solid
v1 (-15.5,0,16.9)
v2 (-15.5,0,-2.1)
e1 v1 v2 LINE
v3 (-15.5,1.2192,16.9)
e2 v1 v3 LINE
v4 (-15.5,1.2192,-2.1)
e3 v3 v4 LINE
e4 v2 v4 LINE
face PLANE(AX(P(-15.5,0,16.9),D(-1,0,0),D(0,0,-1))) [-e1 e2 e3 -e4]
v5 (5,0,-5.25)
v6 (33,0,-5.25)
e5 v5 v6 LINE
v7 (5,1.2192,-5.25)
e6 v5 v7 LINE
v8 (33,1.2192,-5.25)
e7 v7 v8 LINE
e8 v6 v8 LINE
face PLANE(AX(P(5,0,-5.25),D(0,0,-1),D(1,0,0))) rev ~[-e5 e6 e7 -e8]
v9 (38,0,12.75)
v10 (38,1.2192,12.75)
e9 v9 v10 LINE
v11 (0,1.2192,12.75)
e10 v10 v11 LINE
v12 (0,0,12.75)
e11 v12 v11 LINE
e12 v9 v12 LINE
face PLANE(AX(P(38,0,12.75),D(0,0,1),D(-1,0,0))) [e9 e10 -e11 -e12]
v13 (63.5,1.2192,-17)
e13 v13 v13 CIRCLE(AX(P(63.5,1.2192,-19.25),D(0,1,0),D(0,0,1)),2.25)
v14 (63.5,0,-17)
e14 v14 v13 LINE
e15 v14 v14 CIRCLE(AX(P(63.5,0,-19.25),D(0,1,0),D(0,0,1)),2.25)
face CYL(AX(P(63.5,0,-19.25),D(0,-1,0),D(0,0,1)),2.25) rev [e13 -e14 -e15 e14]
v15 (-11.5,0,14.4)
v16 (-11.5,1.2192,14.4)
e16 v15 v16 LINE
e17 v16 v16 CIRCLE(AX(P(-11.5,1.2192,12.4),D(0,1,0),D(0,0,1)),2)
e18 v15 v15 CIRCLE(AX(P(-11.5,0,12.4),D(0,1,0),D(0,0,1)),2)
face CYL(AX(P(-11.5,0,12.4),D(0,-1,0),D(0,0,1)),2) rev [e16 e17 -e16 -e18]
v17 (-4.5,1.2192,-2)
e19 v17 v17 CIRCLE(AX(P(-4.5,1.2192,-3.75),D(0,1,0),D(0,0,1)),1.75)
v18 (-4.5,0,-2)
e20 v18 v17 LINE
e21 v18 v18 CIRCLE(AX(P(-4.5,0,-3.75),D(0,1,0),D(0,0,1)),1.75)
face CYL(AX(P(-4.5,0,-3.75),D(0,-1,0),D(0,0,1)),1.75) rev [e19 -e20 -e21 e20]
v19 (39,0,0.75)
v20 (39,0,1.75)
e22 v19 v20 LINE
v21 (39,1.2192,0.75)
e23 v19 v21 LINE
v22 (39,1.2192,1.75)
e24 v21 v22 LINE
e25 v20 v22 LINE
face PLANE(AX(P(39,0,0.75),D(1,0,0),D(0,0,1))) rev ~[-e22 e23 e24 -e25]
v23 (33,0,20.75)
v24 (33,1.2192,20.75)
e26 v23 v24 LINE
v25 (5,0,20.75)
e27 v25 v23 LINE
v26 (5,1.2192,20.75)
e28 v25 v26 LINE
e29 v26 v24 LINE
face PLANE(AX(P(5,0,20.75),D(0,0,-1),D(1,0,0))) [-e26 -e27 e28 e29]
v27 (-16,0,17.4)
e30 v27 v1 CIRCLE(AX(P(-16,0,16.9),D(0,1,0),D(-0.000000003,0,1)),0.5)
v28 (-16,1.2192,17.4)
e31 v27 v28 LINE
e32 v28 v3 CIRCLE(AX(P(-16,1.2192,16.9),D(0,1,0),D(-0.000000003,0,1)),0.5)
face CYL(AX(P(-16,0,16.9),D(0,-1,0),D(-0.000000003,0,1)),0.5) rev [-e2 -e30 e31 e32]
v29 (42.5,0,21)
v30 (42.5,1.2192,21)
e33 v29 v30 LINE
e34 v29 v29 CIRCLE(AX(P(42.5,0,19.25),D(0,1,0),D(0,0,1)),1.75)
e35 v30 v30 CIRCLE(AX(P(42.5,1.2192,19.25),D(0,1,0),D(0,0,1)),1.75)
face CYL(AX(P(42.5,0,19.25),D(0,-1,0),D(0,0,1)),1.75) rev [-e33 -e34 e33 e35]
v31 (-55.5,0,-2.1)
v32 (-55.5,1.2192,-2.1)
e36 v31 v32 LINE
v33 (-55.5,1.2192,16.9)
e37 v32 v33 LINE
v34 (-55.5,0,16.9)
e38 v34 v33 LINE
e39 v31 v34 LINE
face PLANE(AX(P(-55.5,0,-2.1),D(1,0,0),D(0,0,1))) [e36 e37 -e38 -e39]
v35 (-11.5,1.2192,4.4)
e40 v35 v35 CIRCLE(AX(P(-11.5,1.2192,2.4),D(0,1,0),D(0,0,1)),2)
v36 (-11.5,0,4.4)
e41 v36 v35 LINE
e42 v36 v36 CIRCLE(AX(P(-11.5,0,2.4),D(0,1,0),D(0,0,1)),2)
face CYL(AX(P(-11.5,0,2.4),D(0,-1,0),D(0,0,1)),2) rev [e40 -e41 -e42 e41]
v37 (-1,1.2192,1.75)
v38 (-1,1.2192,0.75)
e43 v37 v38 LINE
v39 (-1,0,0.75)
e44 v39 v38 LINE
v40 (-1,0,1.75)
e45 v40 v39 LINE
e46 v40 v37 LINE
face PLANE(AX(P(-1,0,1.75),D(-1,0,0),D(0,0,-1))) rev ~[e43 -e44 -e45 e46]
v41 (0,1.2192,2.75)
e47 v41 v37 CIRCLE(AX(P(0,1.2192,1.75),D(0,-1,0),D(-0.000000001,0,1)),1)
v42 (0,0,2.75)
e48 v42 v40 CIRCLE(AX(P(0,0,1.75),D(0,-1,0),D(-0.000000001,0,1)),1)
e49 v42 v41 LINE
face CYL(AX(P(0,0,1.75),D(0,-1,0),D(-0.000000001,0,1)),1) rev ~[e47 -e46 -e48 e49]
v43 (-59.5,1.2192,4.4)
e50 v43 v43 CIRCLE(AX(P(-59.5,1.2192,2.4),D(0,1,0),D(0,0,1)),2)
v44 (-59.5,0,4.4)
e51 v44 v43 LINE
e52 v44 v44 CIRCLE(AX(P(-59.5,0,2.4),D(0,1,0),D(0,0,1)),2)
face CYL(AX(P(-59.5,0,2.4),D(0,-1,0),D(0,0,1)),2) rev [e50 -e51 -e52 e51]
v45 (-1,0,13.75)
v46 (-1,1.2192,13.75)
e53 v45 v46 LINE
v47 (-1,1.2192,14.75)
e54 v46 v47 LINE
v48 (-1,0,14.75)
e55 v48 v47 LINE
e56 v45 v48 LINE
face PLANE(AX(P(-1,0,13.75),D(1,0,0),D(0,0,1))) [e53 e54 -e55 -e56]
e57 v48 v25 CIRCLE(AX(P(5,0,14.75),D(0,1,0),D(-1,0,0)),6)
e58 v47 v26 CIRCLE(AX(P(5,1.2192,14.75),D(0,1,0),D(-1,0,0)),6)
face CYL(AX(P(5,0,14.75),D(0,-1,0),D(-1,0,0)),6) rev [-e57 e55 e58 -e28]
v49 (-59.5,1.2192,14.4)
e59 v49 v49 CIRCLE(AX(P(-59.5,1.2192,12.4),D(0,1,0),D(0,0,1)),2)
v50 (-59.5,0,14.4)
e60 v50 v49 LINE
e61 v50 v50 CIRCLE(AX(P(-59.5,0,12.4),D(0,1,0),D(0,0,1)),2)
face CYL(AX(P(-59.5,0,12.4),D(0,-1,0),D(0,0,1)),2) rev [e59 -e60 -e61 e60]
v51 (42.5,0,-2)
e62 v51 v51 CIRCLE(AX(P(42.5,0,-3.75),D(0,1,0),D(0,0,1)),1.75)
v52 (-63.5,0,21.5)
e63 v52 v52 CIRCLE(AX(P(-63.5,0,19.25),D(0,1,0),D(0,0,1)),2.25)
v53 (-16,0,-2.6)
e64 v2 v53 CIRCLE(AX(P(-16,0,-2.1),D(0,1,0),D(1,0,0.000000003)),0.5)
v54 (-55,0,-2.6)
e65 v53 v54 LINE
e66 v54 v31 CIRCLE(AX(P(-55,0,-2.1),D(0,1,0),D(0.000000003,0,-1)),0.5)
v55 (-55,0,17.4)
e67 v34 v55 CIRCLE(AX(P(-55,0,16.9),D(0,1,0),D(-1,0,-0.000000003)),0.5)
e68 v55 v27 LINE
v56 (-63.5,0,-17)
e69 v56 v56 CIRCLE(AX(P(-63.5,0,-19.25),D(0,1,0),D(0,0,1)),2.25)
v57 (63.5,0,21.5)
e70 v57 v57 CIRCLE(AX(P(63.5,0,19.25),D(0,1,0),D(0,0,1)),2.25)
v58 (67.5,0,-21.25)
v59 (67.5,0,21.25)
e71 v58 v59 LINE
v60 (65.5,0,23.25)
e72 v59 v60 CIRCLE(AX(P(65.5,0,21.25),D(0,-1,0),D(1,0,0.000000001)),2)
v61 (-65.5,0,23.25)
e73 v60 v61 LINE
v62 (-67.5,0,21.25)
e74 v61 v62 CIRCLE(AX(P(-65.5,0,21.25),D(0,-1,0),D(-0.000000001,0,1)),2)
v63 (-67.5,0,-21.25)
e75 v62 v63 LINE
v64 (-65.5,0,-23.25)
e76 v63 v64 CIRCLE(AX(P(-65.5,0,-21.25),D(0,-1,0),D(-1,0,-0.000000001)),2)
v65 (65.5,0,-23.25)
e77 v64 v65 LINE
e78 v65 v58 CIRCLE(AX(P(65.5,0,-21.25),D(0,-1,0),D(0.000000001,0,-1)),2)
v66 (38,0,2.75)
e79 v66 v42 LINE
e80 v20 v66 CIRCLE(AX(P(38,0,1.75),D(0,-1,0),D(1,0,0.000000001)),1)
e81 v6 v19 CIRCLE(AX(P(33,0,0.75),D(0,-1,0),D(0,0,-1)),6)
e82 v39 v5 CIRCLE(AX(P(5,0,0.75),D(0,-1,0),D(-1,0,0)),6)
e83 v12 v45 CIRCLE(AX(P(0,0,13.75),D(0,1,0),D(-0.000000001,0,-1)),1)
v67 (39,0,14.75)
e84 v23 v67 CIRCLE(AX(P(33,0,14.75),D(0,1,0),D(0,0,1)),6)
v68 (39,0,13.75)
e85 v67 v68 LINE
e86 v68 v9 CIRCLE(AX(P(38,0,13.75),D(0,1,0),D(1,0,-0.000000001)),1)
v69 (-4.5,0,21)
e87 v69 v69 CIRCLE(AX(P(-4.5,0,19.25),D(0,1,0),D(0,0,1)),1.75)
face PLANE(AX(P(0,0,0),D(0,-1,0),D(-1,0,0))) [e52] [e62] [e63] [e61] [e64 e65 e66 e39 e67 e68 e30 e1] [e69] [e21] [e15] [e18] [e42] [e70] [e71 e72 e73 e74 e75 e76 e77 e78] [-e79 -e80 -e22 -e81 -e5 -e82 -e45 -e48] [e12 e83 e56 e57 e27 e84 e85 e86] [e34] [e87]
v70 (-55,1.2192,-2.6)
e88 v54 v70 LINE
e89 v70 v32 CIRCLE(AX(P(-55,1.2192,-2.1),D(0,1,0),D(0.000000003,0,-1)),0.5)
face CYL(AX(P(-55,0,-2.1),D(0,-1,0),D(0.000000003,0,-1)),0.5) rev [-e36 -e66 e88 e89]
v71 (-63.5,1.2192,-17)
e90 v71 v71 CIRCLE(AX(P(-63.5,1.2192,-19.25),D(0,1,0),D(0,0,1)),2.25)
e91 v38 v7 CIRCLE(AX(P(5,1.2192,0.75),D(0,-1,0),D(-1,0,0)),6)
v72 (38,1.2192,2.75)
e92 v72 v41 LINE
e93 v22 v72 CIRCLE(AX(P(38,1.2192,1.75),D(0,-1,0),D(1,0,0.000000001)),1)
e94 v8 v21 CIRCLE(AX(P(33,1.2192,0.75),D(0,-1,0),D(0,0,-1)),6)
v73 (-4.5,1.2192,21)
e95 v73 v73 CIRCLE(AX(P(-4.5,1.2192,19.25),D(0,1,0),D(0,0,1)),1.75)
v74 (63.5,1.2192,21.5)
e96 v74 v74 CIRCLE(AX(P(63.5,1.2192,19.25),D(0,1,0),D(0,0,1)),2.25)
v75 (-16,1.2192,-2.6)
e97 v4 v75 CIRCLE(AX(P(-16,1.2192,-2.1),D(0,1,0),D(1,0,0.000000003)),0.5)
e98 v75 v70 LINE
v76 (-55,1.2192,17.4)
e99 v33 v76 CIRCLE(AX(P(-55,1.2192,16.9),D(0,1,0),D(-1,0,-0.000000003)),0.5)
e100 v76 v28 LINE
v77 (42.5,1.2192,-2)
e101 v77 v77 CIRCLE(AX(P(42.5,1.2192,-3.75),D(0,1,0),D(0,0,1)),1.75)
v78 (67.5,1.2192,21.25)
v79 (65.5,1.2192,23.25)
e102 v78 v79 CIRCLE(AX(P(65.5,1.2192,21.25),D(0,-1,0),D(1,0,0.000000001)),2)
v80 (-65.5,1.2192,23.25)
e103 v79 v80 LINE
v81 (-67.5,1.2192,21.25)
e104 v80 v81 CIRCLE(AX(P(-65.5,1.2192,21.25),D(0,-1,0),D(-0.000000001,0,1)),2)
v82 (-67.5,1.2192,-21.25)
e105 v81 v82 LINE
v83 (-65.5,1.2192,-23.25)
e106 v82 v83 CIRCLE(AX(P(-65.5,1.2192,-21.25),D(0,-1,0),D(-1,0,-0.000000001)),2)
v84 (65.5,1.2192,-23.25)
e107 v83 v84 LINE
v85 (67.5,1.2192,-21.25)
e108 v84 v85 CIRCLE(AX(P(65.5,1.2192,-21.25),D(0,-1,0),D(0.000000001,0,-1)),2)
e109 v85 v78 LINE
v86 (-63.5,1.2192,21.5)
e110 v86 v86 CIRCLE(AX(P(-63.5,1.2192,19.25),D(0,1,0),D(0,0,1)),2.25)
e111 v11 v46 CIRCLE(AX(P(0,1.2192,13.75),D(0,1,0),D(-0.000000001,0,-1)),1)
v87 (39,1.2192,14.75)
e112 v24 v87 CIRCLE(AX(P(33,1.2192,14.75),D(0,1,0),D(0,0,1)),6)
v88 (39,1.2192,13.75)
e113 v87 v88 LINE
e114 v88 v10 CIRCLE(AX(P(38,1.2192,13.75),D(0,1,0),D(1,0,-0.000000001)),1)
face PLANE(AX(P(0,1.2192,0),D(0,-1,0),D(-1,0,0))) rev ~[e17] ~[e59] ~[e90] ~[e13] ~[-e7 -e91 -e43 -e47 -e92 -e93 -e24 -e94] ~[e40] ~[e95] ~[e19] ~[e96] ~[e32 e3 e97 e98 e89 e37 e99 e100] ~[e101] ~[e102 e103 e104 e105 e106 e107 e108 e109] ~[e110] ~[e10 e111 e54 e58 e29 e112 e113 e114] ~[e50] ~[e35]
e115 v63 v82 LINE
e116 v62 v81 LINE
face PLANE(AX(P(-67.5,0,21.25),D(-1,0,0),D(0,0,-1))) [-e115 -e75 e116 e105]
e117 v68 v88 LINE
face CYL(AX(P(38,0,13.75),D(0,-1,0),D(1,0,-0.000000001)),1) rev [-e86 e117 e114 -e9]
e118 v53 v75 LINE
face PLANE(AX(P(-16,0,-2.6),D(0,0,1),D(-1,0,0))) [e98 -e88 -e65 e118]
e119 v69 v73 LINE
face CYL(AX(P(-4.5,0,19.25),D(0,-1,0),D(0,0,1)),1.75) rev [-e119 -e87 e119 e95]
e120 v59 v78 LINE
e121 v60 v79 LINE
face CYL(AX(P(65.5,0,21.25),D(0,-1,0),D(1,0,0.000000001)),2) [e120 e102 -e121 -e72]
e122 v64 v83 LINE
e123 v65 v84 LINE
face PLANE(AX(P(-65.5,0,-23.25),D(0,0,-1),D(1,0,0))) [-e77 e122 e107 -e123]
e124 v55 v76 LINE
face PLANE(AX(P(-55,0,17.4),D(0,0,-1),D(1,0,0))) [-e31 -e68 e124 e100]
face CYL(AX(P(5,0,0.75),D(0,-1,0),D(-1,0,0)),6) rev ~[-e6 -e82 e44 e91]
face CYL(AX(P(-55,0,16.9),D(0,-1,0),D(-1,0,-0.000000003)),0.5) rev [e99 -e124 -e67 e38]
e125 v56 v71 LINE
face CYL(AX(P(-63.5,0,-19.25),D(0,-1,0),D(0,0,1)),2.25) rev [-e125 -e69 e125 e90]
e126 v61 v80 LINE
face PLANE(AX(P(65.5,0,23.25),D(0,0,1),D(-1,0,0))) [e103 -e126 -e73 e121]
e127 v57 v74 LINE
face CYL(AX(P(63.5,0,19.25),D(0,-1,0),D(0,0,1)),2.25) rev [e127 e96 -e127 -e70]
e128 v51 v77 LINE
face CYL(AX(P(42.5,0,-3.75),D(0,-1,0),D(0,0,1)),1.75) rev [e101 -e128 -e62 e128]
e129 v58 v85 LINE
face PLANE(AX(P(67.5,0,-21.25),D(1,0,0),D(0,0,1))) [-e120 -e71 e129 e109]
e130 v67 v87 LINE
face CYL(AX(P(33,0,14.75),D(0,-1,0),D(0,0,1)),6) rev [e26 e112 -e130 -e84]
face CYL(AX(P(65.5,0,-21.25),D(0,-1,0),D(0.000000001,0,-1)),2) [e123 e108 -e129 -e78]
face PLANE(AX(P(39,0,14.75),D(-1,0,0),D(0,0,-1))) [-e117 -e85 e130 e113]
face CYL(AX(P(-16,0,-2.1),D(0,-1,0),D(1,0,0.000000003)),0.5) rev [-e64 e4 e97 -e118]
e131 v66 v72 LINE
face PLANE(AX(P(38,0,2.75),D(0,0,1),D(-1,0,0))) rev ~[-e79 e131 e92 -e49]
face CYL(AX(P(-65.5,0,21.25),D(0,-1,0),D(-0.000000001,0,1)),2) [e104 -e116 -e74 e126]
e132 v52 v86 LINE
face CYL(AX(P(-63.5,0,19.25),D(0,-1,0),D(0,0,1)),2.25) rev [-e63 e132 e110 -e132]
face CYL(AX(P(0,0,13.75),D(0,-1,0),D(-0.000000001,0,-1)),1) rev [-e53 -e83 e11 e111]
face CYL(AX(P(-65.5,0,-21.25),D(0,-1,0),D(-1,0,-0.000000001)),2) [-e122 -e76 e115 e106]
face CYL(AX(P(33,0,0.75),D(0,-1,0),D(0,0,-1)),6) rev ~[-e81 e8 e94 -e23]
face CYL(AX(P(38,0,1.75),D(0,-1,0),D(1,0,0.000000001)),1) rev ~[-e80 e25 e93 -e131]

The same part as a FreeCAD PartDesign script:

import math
import FreeCAD as App
import Part
import Sketcher
from FreeCAD import Vector

doc = App.newDocument("Part")
body = doc.addObject("PartDesign::Body", "Body")

# Sketch on XZ plane
sketch1 = doc.addObject("Sketcher::SketchObject", "Sketch")
body.addObject(sketch1)
sketch1.AttachmentSupport = (doc.XZ_Plane, [""])
sketch1.MapMode = "FlatFace"
sketch1.addGeometry([
    Part.LineSegment(Vector(-65.5, 23.25, 0), Vector(65.5, 23.25, 0)),  # 0
    Part.ArcOfCircle(Part.Circle(Vector(65.5, 21.25, 0), Vector(0, 0, 1), 2), math.radians(0), math.radians(90)),  # 1
    Part.LineSegment(Vector(67.5, 21.25, 0), Vector(67.5, -21.25, 0)),  # 2
    Part.ArcOfCircle(Part.Circle(Vector(65.5, -21.25, 0), Vector(0, 0, 1), 2), math.radians(-90), math.radians(0)),  # 3
    Part.LineSegment(Vector(65.5, -23.25, 0), Vector(-65.5, -23.25, 0)),  # 4
    Part.ArcOfCircle(Part.Circle(Vector(-65.5, -21.25, 0), Vector(0, 0, 1), 2), math.radians(-180), math.radians(-90)),  # 5
    Part.LineSegment(Vector(-67.5, -21.25, 0), Vector(-67.5, 21.25, 0)),  # 6
    Part.ArcOfCircle(Part.Circle(Vector(-65.5, 21.25, 0), Vector(0, 0, 1), 2), math.radians(90), math.radians(180)),  # 7
    Part.Circle(Vector(63.5, 19.25, 0), Vector(0, 0, 1), 2.25),  # 8
    Part.Circle(Vector(42.5, 19.25, 0), Vector(0, 0, 1), 1.75),  # 9
    Part.ArcOfCircle(Part.Circle(Vector(5, 14.75, 0), Vector(0, 0, 1), 6), math.radians(90), math.radians(180)),  # 10
    Part.LineSegment(Vector(-1, 14.75, 0), Vector(-1, 13.75, 0)),  # 11
    Part.ArcOfCircle(Part.Circle(Vector(0, 13.75, 0), Vector(0, 0, 1), 1), math.radians(-180), math.radians(-90)),  # 12
    Part.LineSegment(Vector(0, 12.75, 0), Vector(38, 12.75, 0)),  # 13
    Part.ArcOfCircle(Part.Circle(Vector(38, 13.75, 0), Vector(0, 0, 1), 1), math.radians(-90), math.radians(0)),  # 14
    Part.LineSegment(Vector(39, 13.75, 0), Vector(39, 14.75, 0)),  # 15
    Part.ArcOfCircle(Part.Circle(Vector(33, 14.75, 0), Vector(0, 0, 1), 6), math.radians(0), math.radians(90)),  # 16
    Part.LineSegment(Vector(33, 20.75, 0), Vector(5, 20.75, 0)),  # 17
    Part.Circle(Vector(-4.5, 19.25, 0), Vector(0, 0, 1), 1.75),  # 18
    Part.Circle(Vector(-11.5, 12.4, 0), Vector(0, 0, 1), 2),  # 19
    Part.Circle(Vector(-63.5, 19.25, 0), Vector(0, 0, 1), 2.25),  # 20
    Part.Circle(Vector(-59.5, 12.4, 0), Vector(0, 0, 1), 2),  # 21
    Part.Circle(Vector(-11.5, 2.4, 0), Vector(0, 0, 1), 2),  # 22
    Part.ArcOfCircle(Part.Circle(Vector(-55, 16.9, 0), Vector(0, 0, 1), 0.5), math.radians(90), math.radians(180)),  # 23
    Part.LineSegment(Vector(-55.5, 16.9, 0), Vector(-55.5, -2.1, 0)),  # 24
    Part.ArcOfCircle(Part.Circle(Vector(-55, -2.1, 0), Vector(0, 0, 1), 0.5), math.radians(180), math.radians(270)),  # 25
    Part.LineSegment(Vector(-55, -2.6, 0), Vector(-16, -2.6, 0)),  # 26
    Part.ArcOfCircle(Part.Circle(Vector(-16, -2.1, 0), Vector(0, 0, 1), 0.5), math.radians(-90), math.radians(0)),  # 27
    Part.LineSegment(Vector(-15.5, -2.1, 0), Vector(-15.5, 16.9, 0)),  # 28
    Part.ArcOfCircle(Part.Circle(Vector(-16, 16.9, 0), Vector(0, 0, 1), 0.5), math.radians(0), math.radians(90)),  # 29
    Part.LineSegment(Vector(-16, 17.4, 0), Vector(-55, 17.4, 0)),  # 30
    Part.Circle(Vector(-59.5, 2.4, 0), Vector(0, 0, 1), 2),  # 31
    Part.Circle(Vector(42.5, -3.75, 0), Vector(0, 0, 1), 1.75),  # 32
    Part.LineSegment(Vector(5, -5.25, 0), Vector(33, -5.25, 0)),  # 33
    Part.ArcOfCircle(Part.Circle(Vector(33, 0.75, 0), Vector(0, 0, 1), 6), math.radians(-90), math.radians(0)),  # 34
    Part.LineSegment(Vector(39, 0.75, 0), Vector(39, 1.75, 0)),  # 35
    Part.ArcOfCircle(Part.Circle(Vector(38, 1.75, 0), Vector(0, 0, 1), 1), math.radians(0), math.radians(90)),  # 36
    Part.LineSegment(Vector(38, 2.75, 0), Vector(0, 2.75, 0)),  # 37
    Part.ArcOfCircle(Part.Circle(Vector(0, 1.75, 0), Vector(0, 0, 1), 1), math.radians(90), math.radians(180)),  # 38
    Part.LineSegment(Vector(-1, 1.75, 0), Vector(-1, 0.75, 0)),  # 39
    Part.ArcOfCircle(Part.Circle(Vector(5, 0.75, 0), Vector(0, 0, 1), 6), math.radians(180), math.radians(270)),  # 40
    Part.Circle(Vector(63.5, -19.25, 0), Vector(0, 0, 1), 2.25),  # 41
    Part.Circle(Vector(-4.5, -3.75, 0), Vector(0, 0, 1), 1.75),  # 42
    Part.Circle(Vector(-63.5, -19.25, 0), Vector(0, 0, 1), 2.25),  # 43
], False)
sketch1.addConstraint([
    Sketcher.Constraint("Tangent", 0, 2, 1, 2),
    Sketcher.Constraint("Tangent", 1, 1, 2, 1),
    Sketcher.Constraint("Tangent", 2, 2, 3, 2),
    Sketcher.Constraint("Tangent", 3, 1, 4, 1),
    Sketcher.Constraint("Tangent", 4, 2, 5, 2),
    Sketcher.Constraint("Tangent", 5, 1, 6, 1),
    Sketcher.Constraint("Tangent", 6, 2, 7, 2),
    Sketcher.Constraint("Tangent", 7, 1, 0, 1),
    Sketcher.Constraint("Tangent", 10, 2, 11, 1),
    Sketcher.Constraint("Tangent", 11, 2, 12, 1),
    Sketcher.Constraint("Tangent", 12, 2, 13, 1),
    Sketcher.Constraint("Tangent", 13, 2, 14, 1),
    Sketcher.Constraint("Tangent", 14, 2, 15, 1),
    Sketcher.Constraint("Tangent", 15, 2, 16, 1),
    Sketcher.Constraint("Tangent", 16, 2, 17, 1),
    Sketcher.Constraint("Tangent", 17, 2, 10, 1),
    Sketcher.Constraint("Tangent", 23, 2, 24, 1),
    Sketcher.Constraint("Tangent", 24, 2, 25, 1),
    Sketcher.Constraint("Tangent", 25, 2, 26, 1),
    Sketcher.Constraint("Tangent", 26, 2, 27, 1),
    Sketcher.Constraint("Tangent", 27, 2, 28, 1),
    Sketcher.Constraint("Tangent", 28, 2, 29, 1),
    Sketcher.Constraint("Tangent", 29, 2, 30, 1),
    Sketcher.Constraint("Tangent", 30, 2, 23, 1),
    Sketcher.Constraint("Tangent", 33, 2, 34, 1),
    Sketcher.Constraint("Tangent", 34, 2, 35, 1),
    Sketcher.Constraint("Tangent", 35, 2, 36, 1),
    Sketcher.Constraint("Tangent", 36, 2, 37, 1),
    Sketcher.Constraint("Tangent", 37, 2, 38, 1),
    Sketcher.Constraint("Tangent", 38, 2, 39, 1),
    Sketcher.Constraint("Tangent", 39, 2, 40, 1),
    Sketcher.Constraint("Tangent", 40, 2, 33, 1),
    Sketcher.Constraint("Horizontal", 0),
    Sketcher.Constraint("Vertical", 2),
    Sketcher.Constraint("Horizontal", 4),
    Sketcher.Constraint("Vertical", 6),
    Sketcher.Constraint("Vertical", 11),
    Sketcher.Constraint("Horizontal", 13),
    Sketcher.Constraint("Vertical", 15),
    Sketcher.Constraint("Horizontal", 17),
    Sketcher.Constraint("Vertical", 24),
    Sketcher.Constraint("Horizontal", 26),
    Sketcher.Constraint("Vertical", 28),
    Sketcher.Constraint("Horizontal", 30),
    Sketcher.Constraint("Horizontal", 33),
    Sketcher.Constraint("Vertical", 35),
    Sketcher.Constraint("Horizontal", 37),
    Sketcher.Constraint("Vertical", 39),
    Sketcher.Constraint("Equal", 1, 3),
    Sketcher.Constraint("Equal", 3, 5),
    Sketcher.Constraint("Equal", 5, 7),
    Sketcher.Constraint("Equal", 12, 14),
    Sketcher.Constraint("Equal", 10, 16),
    Sketcher.Constraint("Equal", 9, 18),
    Sketcher.Constraint("Equal", 7, 19),
    Sketcher.Constraint("Equal", 8, 20),
    Sketcher.Constraint("Equal", 19, 21),
    Sketcher.Constraint("Equal", 21, 22),
    Sketcher.Constraint("Equal", 23, 25),
    Sketcher.Constraint("Equal", 25, 27),
    Sketcher.Constraint("Equal", 27, 29),
    Sketcher.Constraint("Equal", 22, 31),
    Sketcher.Constraint("Equal", 18, 32),
    Sketcher.Constraint("Equal", 16, 34),
    Sketcher.Constraint("Equal", 14, 36),
    Sketcher.Constraint("Equal", 36, 38),
    Sketcher.Constraint("Equal", 34, 40),
    Sketcher.Constraint("Equal", 20, 41),
    Sketcher.Constraint("Equal", 32, 42),
    Sketcher.Constraint("Equal", 41, 43),
    Sketcher.Constraint("Symmetric", 1, 3, 5, 3, -1, 1),
    Sketcher.Constraint("Symmetric", 20, 3, 41, 3, -1, 1),
    Sketcher.Constraint("Symmetric", 8, 3, 43, 3, -1, 1),
    Sketcher.Constraint("Symmetric", 8, 3, 20, 3, -2),
    Sketcher.Constraint("PointOnObject", 12, 3, -2),
    Sketcher.Constraint("PointOnObject", 38, 3, -2),
    Sketcher.Constraint("Horizontal", 8, 3, 9, 3),
    Sketcher.Constraint("Horizontal", 9, 3, 18, 3),
    Sketcher.Constraint("Horizontal", 19, 3, 21, 3),
    Sketcher.Constraint("Horizontal", 22, 3, 31, 3),
    Sketcher.Constraint("Horizontal", 32, 3, 42, 3),
    Sketcher.Constraint("Vertical", 19, 3, 22, 3),
    Sketcher.Constraint("Vertical", 21, 3, 31, 3),
    Sketcher.Constraint("Vertical", 9, 3, 32, 3),
    Sketcher.Constraint("Vertical", 16, 3, 34, 3),
    Sketcher.Constraint("Vertical", 18, 3, 42, 3),
    Sketcher.Constraint("Equal", 15, 35),
    Sketcher.Constraint("Diameter", 19, 4.0),
    Sketcher.Constraint("Radius", 10, 6.0),
    Sketcher.Constraint("Radius", 12, 1.0),
    Sketcher.Constraint("Diameter", 8, 4.5),
    Sketcher.Constraint("Diameter", 9, 3.5),
    Sketcher.Constraint("Radius", 23, 0.5),
    Sketcher.Constraint("DistanceX", 0, 1, 0, 2, 131.0),
    Sketcher.Constraint("DistanceX", 13, 1, 13, 2, 38.0),
    Sketcher.Constraint("DistanceX", 26, 1, 26, 2, 39.0),
    Sketcher.Constraint("DistanceY", 11, 2, 11, 1, 1.0),
    Sketcher.Constraint("DistanceY", 24, 2, 24, 1, 19.0),
    Sketcher.Constraint("DistanceY", 2, 2, 2, 1, 42.5),
    Sketcher.Constraint("DistanceX", 23, 3, -1, 1, 55.0),
    Sketcher.Constraint("DistanceX", 8, 3, 1, 3, 2.0),
    Sketcher.Constraint("DistanceY", 8, 3, 1, 3, 2.0),
    Sketcher.Constraint("DistanceX", 9, 3, 8, 3, 21.0),
    Sketcher.Constraint("DistanceY", 3, 3, 10, 3, 36.0),
    Sketcher.Constraint("DistanceX", 18, 3, 9, 3, 47.0),
    Sketcher.Constraint("DistanceX", 19, 3, 18, 3, 7.0),
    Sketcher.Constraint("DistanceX", 20, 3, 21, 3, 4.0),
    Sketcher.Constraint("DistanceY", 22, 3, 19, 3, 10.0),
    Sketcher.Constraint("DistanceY", 32, 3, 9, 3, 23.0),
    Sketcher.Constraint("DistanceY", 34, 3, 14, 3, 13.0),
    Sketcher.Constraint("DistanceY", 25, 2, 31, 3, 5.0),
    Sketcher.Constraint("DistanceY", -1, 1, 19, 3, 12.4),
])
pad1 = doc.addObject("PartDesign::Pad", "Pad")
body.addObject(pad1)
pad1.Profile = sketch1
pad1.Length = 1.2192
pad1.Reversed = True

doc.recompute()
